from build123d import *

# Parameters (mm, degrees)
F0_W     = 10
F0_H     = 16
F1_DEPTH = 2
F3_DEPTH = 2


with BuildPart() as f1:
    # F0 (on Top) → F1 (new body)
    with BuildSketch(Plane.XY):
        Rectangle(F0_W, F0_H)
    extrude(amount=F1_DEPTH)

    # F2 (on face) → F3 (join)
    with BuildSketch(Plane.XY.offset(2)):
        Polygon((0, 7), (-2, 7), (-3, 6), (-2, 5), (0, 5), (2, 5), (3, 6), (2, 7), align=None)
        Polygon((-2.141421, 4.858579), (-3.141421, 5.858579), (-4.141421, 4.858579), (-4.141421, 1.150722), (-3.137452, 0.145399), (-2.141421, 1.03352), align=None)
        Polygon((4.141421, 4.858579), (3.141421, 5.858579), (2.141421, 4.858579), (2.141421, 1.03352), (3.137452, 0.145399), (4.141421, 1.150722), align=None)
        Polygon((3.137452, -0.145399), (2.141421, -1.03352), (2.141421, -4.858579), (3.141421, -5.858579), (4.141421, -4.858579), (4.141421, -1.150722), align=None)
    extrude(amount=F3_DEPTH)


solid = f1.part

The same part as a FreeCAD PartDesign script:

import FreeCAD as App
import Part
import Sketcher
Q = App.Units.Quantity

doc = App.newDocument("Part")
params = doc.addObject("Spreadsheet::Sheet", "Params")
for row, (alias, value) in enumerate([
    ("sketch1_width", "10 mm"),
    ("sketch1_height", "16 mm"),
    ("pad1_length", "2 mm"),
    ("sketch2_width", "4 mm"),
    ("pad2_length", "2 mm"),
], start=1):
    params.set(f"A{row}", alias)
    params.set(f"B{row}", "=" + value)
    params.setAlias(f"B{row}", alias)

body = doc.addObject("PartDesign::Body", "Body")

sketch1 = body.newObject("Sketcher::SketchObject", "Sketch")
sketch1.AttachmentSupport = (doc.getObject("XY_Plane"), [""])
sketch1.MapMode = "FlatFace"
sketch1.addGeometry([
    Part.LineSegment(App.Vector(-5, 8, 0), App.Vector(-5, -8, 0)),
    Part.LineSegment(App.Vector(-5, -8, 0), App.Vector(5, -8, 0)),
    Part.LineSegment(App.Vector(5, -8, 0), App.Vector(5, 8, 0)),
    Part.LineSegment(App.Vector(5, 8, 0), App.Vector(-5, 8, 0)),
], False)
sketch1.addConstraint([
    Sketcher.Constraint("Coincident", 0, 2, 1, 1),
    Sketcher.Constraint("Coincident", 1, 2, 2, 1),
    Sketcher.Constraint("Coincident", 2, 2, 3, 1),
    Sketcher.Constraint("Coincident", 3, 2, 0, 1),
    Sketcher.Constraint("Vertical", 0),
    Sketcher.Constraint("Horizontal", 1),
    Sketcher.Constraint("Vertical", 2),
    Sketcher.Constraint("Horizontal", 3),
    Sketcher.Constraint("Symmetric", 0, 2, 2, 2, -1, 1),
    Sketcher.Constraint("DistanceX", 1, 1, 1, 2, Q("10 mm")),
    Sketcher.Constraint("DistanceY", 0, 2, 0, 1, Q("16 mm")),
])
sketch1.setExpression("Constraints[9]", "Params.sketch1_width")
sketch1.setExpression("Constraints[10]", "Params.sketch1_height")
pad1 = body.newObject("PartDesign::Pad", "Pad")
pad1.Profile = sketch1
pad1.setExpression("Length", "Params.pad1_length")

sketch2 = body.newObject("Sketcher::SketchObject", "Sketch001")
sketch2.AttachmentSupport = (doc.getObject("XY_Plane"), [""])
sketch2.MapMode = "FlatFace"
sketch2.AttachmentOffset = App.Placement(App.Vector(0, 0, 2), App.Rotation())
sketch2.addGeometry([
    Part.LineSegment(App.Vector(-2, 7, 0), App.Vector(-3, 6, 0)),
    Part.LineSegment(App.Vector(-3, 6, 0), App.Vector(-2, 5, 0)),
    Part.LineSegment(App.Vector(-2, 5, 0), App.Vector(2, 5, 0)),
    Part.LineSegment(App.Vector(2, 5, 0), App.Vector(3, 6, 0)),
    Part.LineSegment(App.Vector(3, 6, 0), App.Vector(2, 7, 0)),
    Part.LineSegment(App.Vector(2, 7, 0), App.Vector(-2, 7, 0)),
    Part.LineSegment(App.Vector(-2.1, 4.9, 0), App.Vector(-3.1, 5.9, 0)),
    Part.LineSegment(App.Vector(-3.1, 5.9, 0), App.Vector(-4.1, 4.9, 0)),
    Part.LineSegment(App.Vector(-4.1, 4.9, 0), App.Vector(-4.1, 1.2, 0)),
    Part.LineSegment(App.Vector(-4.1, 1.2, 0), App.Vector(-3.1, 0.1, 0)),
    Part.LineSegment(App.Vector(-3.1, 0.1, 0), App.Vector(-2.1, 1, 0)),
    Part.LineSegment(App.Vector(-2.1, 1, 0), App.Vector(-2.1, 4.9, 0)),
    Part.LineSegment(App.Vector(4.1, 4.9, 0), App.Vector(3.1, 5.9, 0)),
    Part.LineSegment(App.Vector(3.1, 5.9, 0), App.Vector(2.1, 4.9, 0)),
    Part.LineSegment(App.Vector(2.1, 4.9, 0), App.Vector(2.1, 1, 0)),
    Part.LineSegment(App.Vector(2.1, 1, 0), App.Vector(3.1, 0.1, 0)),
    Part.LineSegment(App.Vector(3.1, 0.1, 0), App.Vector(4.1, 1.2, 0)),
    Part.LineSegment(App.Vector(4.1, 1.2, 0), App.Vector(4.1, 4.9, 0)),
    Part.LineSegment(App.Vector(3.1, -0.1, 0), App.Vector(2.1, -1, 0)),
    Part.LineSegment(App.Vector(2.1, -1, 0), App.Vector(2.1, -4.9, 0)),
    Part.LineSegment(App.Vector(2.1, -4.9, 0), App.Vector(3.1, -5.9, 0)),
    Part.LineSegment(App.Vector(3.1, -5.9, 0), App.Vector(4.1, -4.9, 0)),
    Part.LineSegment(App.Vector(4.1, -4.9, 0), App.Vector(4.1, -1.2, 0)),
    Part.LineSegment(App.Vector(4.1, -1.2, 0), App.Vector(3.1, -0.1, 0)),
], False)
sketch2.addConstraint([
    Sketcher.Constraint("Coincident", 0, 2, 1, 1),
    Sketcher.Constraint("Coincident", 1, 2, 2, 1),
    Sketcher.Constraint("Coincident", 2, 2, 3, 1),
    Sketcher.Constraint("Coincident", 3, 2, 4, 1),
    Sketcher.Constraint("Coincident", 4, 2, 5, 1),
    Sketcher.Constraint("Coincident", 5, 2, 0, 1),
    Sketcher.Constraint("Coincident", 6, 2, 7, 1),
    Sketcher.Constraint("Coincident", 7, 2, 8, 1),
    Sketcher.Constraint("Coincident", 8, 2, 9, 1),
    Sketcher.Constraint("Coincident", 9, 2, 10, 1),
    Sketcher.Constraint("Coincident", 10, 2, 11, 1),
    Sketcher.Constraint("Coincident", 11, 2, 6, 1),
    Sketcher.Constraint("Coincident", 12, 2, 13, 1),
    Sketcher.Constraint("Coincident", 13, 2, 14, 1),
    Sketcher.Constraint("Coincident", 14, 2, 15, 1),
    Sketcher.Constraint("Coincident", 15, 2, 16, 1),
    Sketcher.Constraint("Coincident", 16, 2, 17, 1),
    Sketcher.Constraint("Coincident", 17, 2, 12, 1),
    Sketcher.Constraint("Coincident", 18, 2, 19, 1),
    Sketcher.Constraint("Coincident", 19, 2, 20, 1),
    Sketcher.Constraint("Coincident", 20, 2, 21, 1),
    Sketcher.Constraint("Coincident", 21, 2, 22, 1),
    Sketcher.Constraint("Coincident", 22, 2, 23, 1),
    Sketcher.Constraint("Coincident", 23, 2, 18, 1),
    Sketcher.Constraint("Horizontal", 2),
    Sketcher.Constraint("Horizontal", 5),
    Sketcher.Constraint("Vertical", 8),
    Sketcher.Constraint("Vertical", 11),
    Sketcher.Constraint("Vertical", 14),
    Sketcher.Constraint("Vertical", 17),
    Sketcher.Constraint("Vertical", 19),
    Sketcher.Constraint("Vertical", 22),
    Sketcher.Constraint("Symmetric", 10, 2, 18, 2, -1, 1),
    Sketcher.Constraint("Symmetric", 6, 2, 20, 2, -1, 1),
    Sketcher.Constraint("Symmetric", 7, 2, 21, 2, -1, 1),
    Sketcher.Constraint("Symmetric", 9, 2, 23, 2, -1, 1),
    Sketcher.Constraint("Symmetric", 0, 2, 3, 2, -2),
    Sketcher.Constraint("Symmetric", 6, 2, 12, 2, -2),
    Sketcher.Constraint("Symmetric", 11, 2, 13, 2, -2),
    Sketcher.Constraint("Symmetric", 9, 2, 15, 2, -2),
    Sketcher.Constraint("Symmetric", 8, 2, 16, 2, -2),
    Sketcher.Constraint("Perpendicular", 0, 1),
    Sketcher.Constraint("Perpendicular", 1, 3),
    Sketcher.Constraint("Perpendicular", 3, 4),
    Sketcher.Constraint("Parallel", 4, 6),
    Sketcher.Constraint("Perpendicular", 6, 7),
    Sketcher.Constraint("Perpendicular", 7, 12),
    Sketcher.Constraint("Perpendicular", 12, 13),
    Sketcher.Constraint("Perpendicular", 13, 20),
    Sketcher.Constraint("Parallel", 9, 23),
    Sketcher.Constraint("Horizontal", 7, 2, 11, 2),
    Sketcher.Constraint("Horizontal", 10, 2, 14, 2),
    Sketcher.Constraint("Vertical", 2, 2, 4, 2),
    Sketcher.Constraint("Equal", 4, 6),
    Sketcher.Constraint("DistanceX", 2, 1, 2, 2, Q("4 mm")),
    Sketcher.Constraint("DistanceX", 0, 2, -1, 1, Q("3 mm")),
    Sketcher.Constraint("DistanceY", -1, 1, 0, 2, Q("6 mm")),
    Sketcher.Constraint("DistanceY", 11, 1, 11, 2, Q("3.825059 mm")),
    Sketcher.Constraint("DistanceY", -1, 1, 9, 2, Q("0.145399 mm")),
    Sketcher.Constraint("DistanceY", 19, 2, 14, 2, Q("5.892099 mm")),
    Sketcher.Constraint("DistanceY", 19, 2, 16, 2, Q("6.009301 mm")),
    Sketcher.Constraint("Distance", 10, Q("1.33448 mm")),
    Sketcher.Constraint("DistanceX", 6, 2, -1, 1, Q("3.141421 mm")),
])
sketch2.setExpression("Constraints[54]", "Params.sketch2_width")
pad2 = body.newObject("PartDesign::Pad", "Pad001")
pad2.Profile = sketch2
pad2.setExpression("Length", "Params.pad2_length")

doc.recompute()
